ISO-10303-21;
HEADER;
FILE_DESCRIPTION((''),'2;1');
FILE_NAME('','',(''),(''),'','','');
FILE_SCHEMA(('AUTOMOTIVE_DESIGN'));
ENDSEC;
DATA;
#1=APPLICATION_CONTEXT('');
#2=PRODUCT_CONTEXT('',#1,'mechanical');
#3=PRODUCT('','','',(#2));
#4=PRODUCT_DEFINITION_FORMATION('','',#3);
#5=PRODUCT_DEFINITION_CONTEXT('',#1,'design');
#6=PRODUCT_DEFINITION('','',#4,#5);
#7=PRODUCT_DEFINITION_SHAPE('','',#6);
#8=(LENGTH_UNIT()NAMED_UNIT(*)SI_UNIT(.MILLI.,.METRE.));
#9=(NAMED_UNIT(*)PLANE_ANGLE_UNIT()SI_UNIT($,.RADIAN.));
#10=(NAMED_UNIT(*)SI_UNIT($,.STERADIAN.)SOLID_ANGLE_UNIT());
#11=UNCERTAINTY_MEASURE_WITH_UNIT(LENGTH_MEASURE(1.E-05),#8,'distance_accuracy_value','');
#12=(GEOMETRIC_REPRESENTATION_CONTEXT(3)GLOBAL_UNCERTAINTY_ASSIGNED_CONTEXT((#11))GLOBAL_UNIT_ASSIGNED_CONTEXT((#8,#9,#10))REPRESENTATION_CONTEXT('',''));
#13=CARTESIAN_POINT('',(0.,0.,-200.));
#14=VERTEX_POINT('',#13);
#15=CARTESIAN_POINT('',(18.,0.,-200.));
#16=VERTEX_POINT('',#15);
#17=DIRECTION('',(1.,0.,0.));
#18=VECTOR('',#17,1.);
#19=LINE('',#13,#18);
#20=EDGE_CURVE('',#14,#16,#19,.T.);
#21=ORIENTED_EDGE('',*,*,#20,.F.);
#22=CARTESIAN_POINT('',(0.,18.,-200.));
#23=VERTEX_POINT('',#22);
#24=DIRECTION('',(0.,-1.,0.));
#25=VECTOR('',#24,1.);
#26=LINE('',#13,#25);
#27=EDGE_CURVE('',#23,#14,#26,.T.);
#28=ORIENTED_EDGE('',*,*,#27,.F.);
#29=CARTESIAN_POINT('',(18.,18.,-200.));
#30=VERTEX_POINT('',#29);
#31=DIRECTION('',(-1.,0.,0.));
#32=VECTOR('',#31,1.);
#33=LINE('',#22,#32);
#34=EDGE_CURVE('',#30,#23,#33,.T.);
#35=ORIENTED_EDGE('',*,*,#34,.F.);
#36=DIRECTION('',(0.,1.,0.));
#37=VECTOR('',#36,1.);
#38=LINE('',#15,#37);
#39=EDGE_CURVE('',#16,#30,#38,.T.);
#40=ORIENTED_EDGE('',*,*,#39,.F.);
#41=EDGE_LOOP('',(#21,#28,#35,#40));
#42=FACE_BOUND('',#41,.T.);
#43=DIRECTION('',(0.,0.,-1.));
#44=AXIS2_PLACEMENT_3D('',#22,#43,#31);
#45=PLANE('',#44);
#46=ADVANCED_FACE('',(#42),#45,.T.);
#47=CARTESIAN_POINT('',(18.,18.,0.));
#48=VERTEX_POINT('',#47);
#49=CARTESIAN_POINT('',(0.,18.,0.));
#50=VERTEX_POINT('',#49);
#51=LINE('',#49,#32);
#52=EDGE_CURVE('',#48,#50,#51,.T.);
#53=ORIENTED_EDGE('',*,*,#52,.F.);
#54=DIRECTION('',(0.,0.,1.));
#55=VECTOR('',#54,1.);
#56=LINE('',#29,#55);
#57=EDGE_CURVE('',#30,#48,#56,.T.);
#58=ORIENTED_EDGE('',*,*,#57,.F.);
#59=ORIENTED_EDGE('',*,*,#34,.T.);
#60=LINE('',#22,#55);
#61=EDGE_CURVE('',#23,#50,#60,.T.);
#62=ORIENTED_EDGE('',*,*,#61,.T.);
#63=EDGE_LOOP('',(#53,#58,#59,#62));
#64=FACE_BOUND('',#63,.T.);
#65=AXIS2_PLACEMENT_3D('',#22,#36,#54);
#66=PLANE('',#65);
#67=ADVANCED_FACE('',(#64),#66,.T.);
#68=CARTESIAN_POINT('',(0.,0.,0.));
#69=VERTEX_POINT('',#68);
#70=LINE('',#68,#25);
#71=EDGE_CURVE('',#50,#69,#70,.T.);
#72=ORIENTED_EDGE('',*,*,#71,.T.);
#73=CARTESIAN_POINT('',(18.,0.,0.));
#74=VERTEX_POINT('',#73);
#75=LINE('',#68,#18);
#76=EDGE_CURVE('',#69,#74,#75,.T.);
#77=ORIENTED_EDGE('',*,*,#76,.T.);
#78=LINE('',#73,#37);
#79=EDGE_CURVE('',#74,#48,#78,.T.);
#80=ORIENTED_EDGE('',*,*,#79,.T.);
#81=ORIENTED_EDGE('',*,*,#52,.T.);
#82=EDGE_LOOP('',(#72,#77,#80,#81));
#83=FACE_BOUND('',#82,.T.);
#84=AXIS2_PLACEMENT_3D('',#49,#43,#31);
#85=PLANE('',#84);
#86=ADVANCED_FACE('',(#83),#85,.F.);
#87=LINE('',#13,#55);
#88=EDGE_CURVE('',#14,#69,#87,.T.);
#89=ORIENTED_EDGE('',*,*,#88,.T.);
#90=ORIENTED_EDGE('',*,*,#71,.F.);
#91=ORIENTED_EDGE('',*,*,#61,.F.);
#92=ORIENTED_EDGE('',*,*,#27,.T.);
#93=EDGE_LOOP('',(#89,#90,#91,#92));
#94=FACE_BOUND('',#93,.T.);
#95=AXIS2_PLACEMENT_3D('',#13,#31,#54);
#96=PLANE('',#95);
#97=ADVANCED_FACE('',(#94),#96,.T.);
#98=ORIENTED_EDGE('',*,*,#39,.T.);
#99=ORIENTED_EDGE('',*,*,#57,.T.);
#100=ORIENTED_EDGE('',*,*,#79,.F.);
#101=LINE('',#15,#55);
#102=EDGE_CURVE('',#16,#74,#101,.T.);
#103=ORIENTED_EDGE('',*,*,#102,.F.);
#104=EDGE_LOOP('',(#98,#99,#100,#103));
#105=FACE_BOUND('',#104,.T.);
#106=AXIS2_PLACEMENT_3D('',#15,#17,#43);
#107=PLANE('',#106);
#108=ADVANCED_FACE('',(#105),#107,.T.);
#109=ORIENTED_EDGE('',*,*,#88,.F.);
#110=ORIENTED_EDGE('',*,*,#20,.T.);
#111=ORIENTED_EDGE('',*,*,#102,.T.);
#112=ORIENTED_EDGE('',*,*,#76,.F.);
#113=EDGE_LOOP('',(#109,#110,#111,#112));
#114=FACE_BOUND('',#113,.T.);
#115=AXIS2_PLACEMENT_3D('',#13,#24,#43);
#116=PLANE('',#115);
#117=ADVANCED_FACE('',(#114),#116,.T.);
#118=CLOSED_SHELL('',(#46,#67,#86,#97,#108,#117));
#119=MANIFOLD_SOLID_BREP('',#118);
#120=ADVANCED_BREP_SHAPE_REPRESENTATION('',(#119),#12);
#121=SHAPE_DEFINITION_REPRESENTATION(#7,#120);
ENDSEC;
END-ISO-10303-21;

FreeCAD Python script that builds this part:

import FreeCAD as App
import Part
import Sketcher
from FreeCAD import Vector

doc = App.newDocument("Part")
params = doc.addObject("Spreadsheet::Sheet", "Params")
for row, (alias, value) in enumerate([
    ("sketch1_width", "18 mm"),
    ("pad1_length", "200 mm"),
], start=1):
    params.set(f"A{row}", alias)
    params.set(f"B{row}", "=" + value)
    params.setAlias(f"B{row}", alias)

body = doc.addObject("PartDesign::Body", "Body")

sketch1 = body.newObject("Sketcher::SketchObject", "Sketch")
sketch1.AttachmentSupport = (doc.getObject("XY_Plane"), [""])
sketch1.MapMode = "FlatFace"
sketch1.addGeometry([
    Part.LineSegment(Vector(0, 18, 0), Vector(0, 0, 0)),
    Part.LineSegment(Vector(0, 0, 0), Vector(18, 0, 0)),
    Part.LineSegment(Vector(18, 0, 0), Vector(18, 18, 0)),
    Part.LineSegment(Vector(18, 18, 0), Vector(0, 18, 0)),
], False)
sketch1.addConstraint([
    Sketcher.Constraint("Coincident", 0, 2, 1, 1),
    Sketcher.Constraint("Coincident", 1, 2, 2, 1),
    Sketcher.Constraint("Coincident", 2, 2, 3, 1),
    Sketcher.Constraint("Coincident", 3, 2, 0, 1),
    Sketcher.Constraint("Vertical", 0),
    Sketcher.Constraint("Horizontal", 1),
    Sketcher.Constraint("Vertical", 2),
    Sketcher.Constraint("Horizontal", 3),
    Sketcher.Constraint("Coincident", 0, 2, -1, 1),
    Sketcher.Constraint("Equal", 3, 0),
    Sketcher.Constraint("DistanceX", 1, 1, 1, 2, 18.0),
])
sketch1.setExpression("Constraints[10]", "Params.sketch1_width")
pad1 = body.newObject("PartDesign::Pad", "Pad")
pad1.Profile = sketch1
pad1.setExpression("Length", "Params.pad1_length")
pad1.Reversed = True

doc.recompute()
